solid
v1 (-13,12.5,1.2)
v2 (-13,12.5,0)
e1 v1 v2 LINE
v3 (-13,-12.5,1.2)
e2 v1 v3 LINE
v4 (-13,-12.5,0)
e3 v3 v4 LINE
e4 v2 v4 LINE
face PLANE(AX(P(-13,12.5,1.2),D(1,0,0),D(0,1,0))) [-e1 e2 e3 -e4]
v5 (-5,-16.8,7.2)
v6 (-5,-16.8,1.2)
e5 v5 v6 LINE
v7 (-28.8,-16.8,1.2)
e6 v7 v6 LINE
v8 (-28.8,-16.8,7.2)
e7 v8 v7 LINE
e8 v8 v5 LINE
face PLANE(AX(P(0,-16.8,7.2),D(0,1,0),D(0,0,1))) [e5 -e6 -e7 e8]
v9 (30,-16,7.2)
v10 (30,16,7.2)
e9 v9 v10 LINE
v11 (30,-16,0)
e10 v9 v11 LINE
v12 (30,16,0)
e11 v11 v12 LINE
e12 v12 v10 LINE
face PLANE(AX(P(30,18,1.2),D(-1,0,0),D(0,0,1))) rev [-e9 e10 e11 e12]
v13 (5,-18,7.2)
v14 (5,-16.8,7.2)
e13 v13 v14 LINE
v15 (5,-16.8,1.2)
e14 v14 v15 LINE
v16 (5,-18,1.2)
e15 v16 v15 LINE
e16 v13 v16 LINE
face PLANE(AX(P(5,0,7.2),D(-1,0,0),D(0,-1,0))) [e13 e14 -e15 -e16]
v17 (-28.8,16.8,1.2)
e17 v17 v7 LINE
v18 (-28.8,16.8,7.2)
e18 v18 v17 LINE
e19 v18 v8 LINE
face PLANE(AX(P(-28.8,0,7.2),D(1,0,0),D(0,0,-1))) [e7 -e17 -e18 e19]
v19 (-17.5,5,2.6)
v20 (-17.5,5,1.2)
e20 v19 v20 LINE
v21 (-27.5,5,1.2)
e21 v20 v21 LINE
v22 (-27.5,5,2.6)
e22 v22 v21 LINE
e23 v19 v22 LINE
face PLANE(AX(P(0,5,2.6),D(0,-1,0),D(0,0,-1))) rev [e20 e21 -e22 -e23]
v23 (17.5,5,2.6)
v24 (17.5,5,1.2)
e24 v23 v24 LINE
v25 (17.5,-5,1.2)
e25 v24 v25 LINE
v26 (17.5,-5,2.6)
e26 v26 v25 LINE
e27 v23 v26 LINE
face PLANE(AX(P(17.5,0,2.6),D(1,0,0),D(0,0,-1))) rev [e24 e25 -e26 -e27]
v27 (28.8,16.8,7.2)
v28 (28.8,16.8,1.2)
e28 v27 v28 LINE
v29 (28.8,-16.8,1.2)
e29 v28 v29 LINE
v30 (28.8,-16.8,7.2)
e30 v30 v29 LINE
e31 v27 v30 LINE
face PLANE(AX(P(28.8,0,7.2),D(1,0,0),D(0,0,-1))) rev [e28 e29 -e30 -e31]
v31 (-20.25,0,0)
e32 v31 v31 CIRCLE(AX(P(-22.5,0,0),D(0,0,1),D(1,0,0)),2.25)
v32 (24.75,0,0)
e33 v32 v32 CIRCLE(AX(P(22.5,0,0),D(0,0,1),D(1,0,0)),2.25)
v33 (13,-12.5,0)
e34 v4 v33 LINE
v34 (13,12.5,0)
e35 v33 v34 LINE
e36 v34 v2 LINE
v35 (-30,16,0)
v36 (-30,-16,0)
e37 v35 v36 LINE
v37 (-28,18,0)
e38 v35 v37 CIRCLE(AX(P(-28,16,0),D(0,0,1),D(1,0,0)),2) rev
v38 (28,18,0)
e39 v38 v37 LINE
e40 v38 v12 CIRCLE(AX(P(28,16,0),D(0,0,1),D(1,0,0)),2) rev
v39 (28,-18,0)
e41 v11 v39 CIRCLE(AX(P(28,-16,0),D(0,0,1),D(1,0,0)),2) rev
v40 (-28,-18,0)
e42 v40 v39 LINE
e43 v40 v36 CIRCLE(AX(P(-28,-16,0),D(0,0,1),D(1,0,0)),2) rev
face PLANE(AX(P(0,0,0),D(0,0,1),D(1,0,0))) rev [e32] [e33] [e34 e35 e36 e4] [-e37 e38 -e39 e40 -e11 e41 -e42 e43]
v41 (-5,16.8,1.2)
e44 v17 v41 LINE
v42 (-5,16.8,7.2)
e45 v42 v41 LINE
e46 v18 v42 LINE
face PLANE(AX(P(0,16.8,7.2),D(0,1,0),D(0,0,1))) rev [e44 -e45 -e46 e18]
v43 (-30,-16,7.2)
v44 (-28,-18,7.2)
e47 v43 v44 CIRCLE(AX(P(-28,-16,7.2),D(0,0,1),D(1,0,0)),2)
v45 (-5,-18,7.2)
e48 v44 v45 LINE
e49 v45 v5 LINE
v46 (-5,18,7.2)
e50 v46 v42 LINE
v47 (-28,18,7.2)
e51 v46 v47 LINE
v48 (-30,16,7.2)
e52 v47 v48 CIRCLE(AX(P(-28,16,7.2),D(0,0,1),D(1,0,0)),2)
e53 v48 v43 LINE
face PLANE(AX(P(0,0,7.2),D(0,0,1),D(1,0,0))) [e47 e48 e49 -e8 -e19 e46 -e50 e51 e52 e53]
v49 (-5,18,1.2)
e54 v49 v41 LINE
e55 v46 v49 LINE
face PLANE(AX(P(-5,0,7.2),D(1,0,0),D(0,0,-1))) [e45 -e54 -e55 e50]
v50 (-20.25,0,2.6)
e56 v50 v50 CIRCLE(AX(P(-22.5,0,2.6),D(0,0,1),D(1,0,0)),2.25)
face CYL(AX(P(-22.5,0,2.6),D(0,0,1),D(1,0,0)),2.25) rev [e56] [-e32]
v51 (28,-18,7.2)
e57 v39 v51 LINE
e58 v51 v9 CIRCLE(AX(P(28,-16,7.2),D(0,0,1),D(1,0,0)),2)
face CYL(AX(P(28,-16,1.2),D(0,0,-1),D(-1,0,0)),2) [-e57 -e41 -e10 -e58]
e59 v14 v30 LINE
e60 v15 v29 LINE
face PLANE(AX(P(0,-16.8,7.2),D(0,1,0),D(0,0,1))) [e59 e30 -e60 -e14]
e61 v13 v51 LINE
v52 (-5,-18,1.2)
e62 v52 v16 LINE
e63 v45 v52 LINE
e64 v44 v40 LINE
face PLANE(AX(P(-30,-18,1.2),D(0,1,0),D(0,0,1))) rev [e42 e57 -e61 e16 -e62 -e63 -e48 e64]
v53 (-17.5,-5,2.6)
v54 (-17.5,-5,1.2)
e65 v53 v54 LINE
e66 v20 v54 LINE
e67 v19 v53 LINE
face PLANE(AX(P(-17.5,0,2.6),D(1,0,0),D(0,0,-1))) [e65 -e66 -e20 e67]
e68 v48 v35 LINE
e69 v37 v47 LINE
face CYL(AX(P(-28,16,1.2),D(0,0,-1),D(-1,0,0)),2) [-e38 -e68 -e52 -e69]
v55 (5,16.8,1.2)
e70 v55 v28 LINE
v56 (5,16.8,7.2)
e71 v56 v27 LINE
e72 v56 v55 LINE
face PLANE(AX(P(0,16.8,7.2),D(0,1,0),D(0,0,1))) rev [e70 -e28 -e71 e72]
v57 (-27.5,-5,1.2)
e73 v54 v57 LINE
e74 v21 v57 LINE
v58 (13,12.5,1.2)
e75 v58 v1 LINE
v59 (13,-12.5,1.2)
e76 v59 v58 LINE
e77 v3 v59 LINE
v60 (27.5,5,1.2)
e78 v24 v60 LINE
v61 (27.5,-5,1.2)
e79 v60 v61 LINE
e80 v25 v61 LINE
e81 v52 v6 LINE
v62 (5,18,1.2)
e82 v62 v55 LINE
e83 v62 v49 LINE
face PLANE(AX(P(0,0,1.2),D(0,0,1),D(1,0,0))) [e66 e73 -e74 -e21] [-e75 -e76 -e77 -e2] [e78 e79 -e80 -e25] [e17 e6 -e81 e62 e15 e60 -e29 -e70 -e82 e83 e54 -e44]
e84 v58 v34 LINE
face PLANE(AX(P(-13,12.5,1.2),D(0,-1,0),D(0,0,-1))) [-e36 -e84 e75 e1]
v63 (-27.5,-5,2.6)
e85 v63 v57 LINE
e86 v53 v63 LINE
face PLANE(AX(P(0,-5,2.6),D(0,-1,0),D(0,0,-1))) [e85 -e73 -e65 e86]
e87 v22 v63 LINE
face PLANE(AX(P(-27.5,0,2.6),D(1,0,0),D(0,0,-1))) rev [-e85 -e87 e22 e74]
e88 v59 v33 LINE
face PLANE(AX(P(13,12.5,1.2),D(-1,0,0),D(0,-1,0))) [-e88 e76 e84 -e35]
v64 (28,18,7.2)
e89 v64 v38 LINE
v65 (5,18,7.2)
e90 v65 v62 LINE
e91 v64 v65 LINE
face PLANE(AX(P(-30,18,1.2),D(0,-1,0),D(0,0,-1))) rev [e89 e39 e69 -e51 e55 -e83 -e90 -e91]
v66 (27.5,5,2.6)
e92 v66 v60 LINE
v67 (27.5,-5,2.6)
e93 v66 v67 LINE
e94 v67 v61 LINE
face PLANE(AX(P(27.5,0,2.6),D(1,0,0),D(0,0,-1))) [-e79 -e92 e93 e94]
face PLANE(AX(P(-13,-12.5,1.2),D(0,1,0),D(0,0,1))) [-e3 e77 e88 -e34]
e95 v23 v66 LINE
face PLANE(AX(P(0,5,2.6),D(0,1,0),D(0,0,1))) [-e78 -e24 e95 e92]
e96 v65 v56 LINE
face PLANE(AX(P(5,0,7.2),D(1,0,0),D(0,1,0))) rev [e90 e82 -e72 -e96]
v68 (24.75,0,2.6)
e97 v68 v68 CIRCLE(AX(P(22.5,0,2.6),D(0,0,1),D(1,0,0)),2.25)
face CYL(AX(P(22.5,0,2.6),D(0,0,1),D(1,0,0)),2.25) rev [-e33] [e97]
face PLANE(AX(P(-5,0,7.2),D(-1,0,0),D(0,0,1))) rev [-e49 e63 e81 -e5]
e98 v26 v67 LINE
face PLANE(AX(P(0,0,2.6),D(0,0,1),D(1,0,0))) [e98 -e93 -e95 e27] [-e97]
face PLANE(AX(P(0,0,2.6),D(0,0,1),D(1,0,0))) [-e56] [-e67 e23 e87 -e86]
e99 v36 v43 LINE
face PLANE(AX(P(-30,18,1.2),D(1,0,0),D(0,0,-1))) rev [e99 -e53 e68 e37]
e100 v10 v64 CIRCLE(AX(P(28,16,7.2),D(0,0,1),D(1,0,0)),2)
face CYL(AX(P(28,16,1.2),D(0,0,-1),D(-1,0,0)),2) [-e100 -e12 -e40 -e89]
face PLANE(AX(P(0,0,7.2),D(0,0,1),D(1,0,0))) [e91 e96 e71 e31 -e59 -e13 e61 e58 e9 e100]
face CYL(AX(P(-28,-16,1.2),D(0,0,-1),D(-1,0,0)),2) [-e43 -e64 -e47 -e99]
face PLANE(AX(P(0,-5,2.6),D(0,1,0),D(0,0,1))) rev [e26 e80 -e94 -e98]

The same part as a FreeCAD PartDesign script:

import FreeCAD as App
import Part
import Sketcher
Q = App.Units.Quantity


def edges_at(feature, points):
    """Names of the edges that pass closest to the given points."""
    edges = feature.Shape.Edges
    near = lambda p: min(range(len(edges)), key=lambda i: edges[i].distToShape(Part.Vertex(*p))[0])
    return sorted({f"Edge{near(p) + 1}" for p in points})


def add_polygon(sketch, points):
    """Adds a closed chain of lines whose ends are joined by coincident constraints."""
    first, n = sketch.GeometryCount, len(points)
    for a, b in zip(points, points[1:] + points[:1]):
        sketch.addGeometry(Part.LineSegment(App.Vector(*a, 0), App.Vector(*b, 0)), False)
    for i in range(n):
        sketch.addConstraint(Sketcher.Constraint("Coincident", first + i, 2, first + (i + 1) % n, 1))

doc = App.newDocument("Part")
body = doc.addObject("PartDesign::Body", "Body")

sketch1 = body.newObject("Sketcher::SketchObject", "Sketch")
sketch1.AttachmentSupport = (doc.getObject("XY_Plane"), [""])
sketch1.MapMode = "FlatFace"
add_polygon(sketch1, [(-30, 18), (-30, -18), (30, -18), (30, 18)])
add_polygon(sketch1, [(13, -12), (-13, -12), (-13, 12), (13, 12)])
sketch1.addConstraint(Sketcher.Constraint("Vertical", 0))
sketch1.addConstraint(Sketcher.Constraint("Horizontal", 1))
sketch1.addConstraint(Sketcher.Constraint("Vertical", 2))
sketch1.addConstraint(Sketcher.Constraint("Horizontal", 3))
sketch1.addConstraint(Sketcher.Constraint("Horizontal", 4))
sketch1.addConstraint(Sketcher.Constraint("Vertical", 5))
sketch1.addConstraint(Sketcher.Constraint("Horizontal", 6))
sketch1.addConstraint(Sketcher.Constraint("Vertical", 7))
sketch1.addConstraint(Sketcher.Constraint("Symmetric", 0, 2, 2, 2, -1, 1))
sketch1.addConstraint(Sketcher.Constraint("Symmetric", 4, 2, 6, 2, -1, 1))
sketch1.addConstraint(Sketcher.Constraint("DistanceX", 1, 1, 1, 2, Q("60 mm")))
sketch1.addConstraint(Sketcher.Constraint("DistanceX", 4, 2, 4, 1, Q("26 mm")))
sketch1.addConstraint(Sketcher.Constraint("DistanceY", 0, 2, 0, 1, Q("36 mm")))
sketch1.addConstraint(Sketcher.Constraint("DistanceY", 5, 1, 5, 2, Q("25 mm")))
pad1 = body.newObject("PartDesign::Pad", "Pad")
pad1.Profile = sketch1
pad1.Length = 1.2

sketch2 = body.newObject("Sketcher::SketchObject", "Sketch001")
sketch2.AttachmentSupport = (doc.getObject("XY_Plane"), [""])
sketch2.MapMode = "FlatFace"
sketch2.AttachmentOffset = App.Placement(App.Vector(0, 0, 1.2), App.Rotation())
add_polygon(sketch2, [(18, 5), (18, -5), (28, -5), (28, 5)])
add_polygon(sketch2, [(-28, 5), (-28, -5), (-18, -5), (-18, 5)])
sketch2.addConstraint(Sketcher.Constraint("Vertical", 0))
sketch2.addConstraint(Sketcher.Constraint("Horizontal", 1))
sketch2.addConstraint(Sketcher.Constraint("Vertical", 2))
sketch2.addConstraint(Sketcher.Constraint("Horizontal", 3))
sketch2.addConstraint(Sketcher.Constraint("Vertical", 4))
sketch2.addConstraint(Sketcher.Constraint("Horizontal", 5))
sketch2.addConstraint(Sketcher.Constraint("Vertical", 6))
sketch2.addConstraint(Sketcher.Constraint("Horizontal", 7))
sketch2.addConstraint(Sketcher.Constraint("Symmetric", 2, 2, 4, 2, -1, 1))
sketch2.addConstraint(Sketcher.Constraint("Symmetric", 0, 2, 6, 2, -1, 1))
sketch2.addConstraint(Sketcher.Constraint("Horizontal", 1, 2, 4, 2))
sketch2.addConstraint(Sketcher.Constraint("Equal", 7, 0))
sketch2.addConstraint(Sketcher.Constraint("DistanceX", 1, 1, 1, 2, Q("10 mm")))
sketch2.addConstraint(Sketcher.Constraint("DistanceX", 4, 2, 0, 2, Q("45 mm")))
pad2 = body.newObject("PartDesign::Pad", "Pad001")
pad2.Profile = sketch2
pad2.Length = 1.4

sketch3 = body.newObject("Sketcher::SketchObject", "Sketch002")
sketch3.AttachmentSupport = (doc.getObject("XY_Plane"), [""])
sketch3.MapMode = "FlatFace"
sketch3.AttachmentOffset = App.Placement(App.Vector(0, 0, 1.2), App.Rotation())
add_polygon(sketch3, [(-28.8, -16.8), (-28.8, 16.8), (-5, 16.8), (-5, 18), (-30, 18), (-30, -18), (-5, -18), (-5, -16.8)])
add_polygon(sketch3, [(28.8, -16.8), (5, -16.8), (5, -18), (30, -18), (30, 18), (5, 18), (5, 16.8), (28.8, 16.8)])
sketch3.addConstraint(Sketcher.Constraint("Vertical", 0))
sketch3.addConstraint(Sketcher.Constraint("Horizontal", 1))
sketch3.addConstraint(Sketcher.Constraint("Vertical", 2))
sketch3.addConstraint(Sketcher.Constraint("Horizontal", 3))
sketch3.addConstraint(Sketcher.Constraint("Vertical", 4))
sketch3.addConstraint(Sketcher.Constraint("Horizontal", 5))
sketch3.addConstraint(Sketcher.Constraint("Vertical", 6))
sketch3.addConstraint(Sketcher.Constraint("Horizontal", 7))
sketch3.addConstraint(Sketcher.Constraint("Horizontal", 8))
sketch3.addConstraint(Sketcher.Constraint("Vertical", 9))
sketch3.addConstraint(Sketcher.Constraint("Horizontal", 10))
sketch3.addConstraint(Sketcher.Constraint("Vertical", 11))
sketch3.addConstraint(Sketcher.Constraint("Horizontal", 12))
sketch3.addConstraint(Sketcher.Constraint("Vertical", 13))
sketch3.addConstraint(Sketcher.Constraint("Horizontal", 14))
sketch3.addConstraint(Sketcher.Constraint("Vertical", 15))
sketch3.addConstraint(Sketcher.Constraint("Symmetric", 1, 2, 8, 2, -1, 1))
sketch3.addConstraint(Sketcher.Constraint("Symmetric", 3, 2, 10, 2, -1, 1))
sketch3.addConstraint(Sketcher.Constraint("Symmetric", 5, 2, 12, 2, -1, 1))
sketch3.addConstraint(Sketcher.Constraint("Symmetric", 7, 2, 14, 2, -1, 1))
sketch3.addConstraint(Sketcher.Constraint("Symmetric", 6, 2, 8, 2, -2))
sketch3.addConstraint(Sketcher.Constraint("Horizontal", 5, 2, 9, 2))
sketch3.addConstraint(Sketcher.Constraint("DistanceX", 3, 2, 3, 1, Q("25 mm")))
sketch3.addConstraint(Sketcher.Constraint("DistanceY", 4, 2, 4, 1, Q("36 mm")))
sketch3.addConstraint(Sketcher.Constraint("DistanceX", 1, 1, 1, 2, Q("23.8 mm")))
sketch3.addConstraint(Sketcher.Constraint("DistanceY", 0, 1, 0, 2, Q("33.6 mm")))
sketch3.addConstraint(Sketcher.Constraint("DistanceX", 1, 2, -1, 1, Q("5 mm")))
pad3 = body.newObject("PartDesign::Pad", "Pad002")
pad3.Profile = sketch3
pad3.Length = 6

sketch4 = body.newObject("Sketcher::SketchObject", "Sketch003")
sketch4.AttachmentSupport = (doc.getObject("XY_Plane"), [""])
sketch4.MapMode = "FlatFace"
sketch4.AttachmentOffset = App.Placement(App.Vector(0, 0, 2.6), App.Rotation())
sketch4.addGeometry(Part.Circle(App.Vector(-22.5, 0, 0), App.Vector(0, 0, 1), 2.2), False)
sketch4.addGeometry(Part.Circle(App.Vector(22.5, 0, 0), App.Vector(0, 0, 1), 2.2), False)
sketch4.addConstraint(Sketcher.Constraint("Equal", 0, 1))
sketch4.addConstraint(Sketcher.Constraint("Symmetric", 0, 3, 1, 3, -1, 1))
sketch4.addConstraint(Sketcher.Constraint("PointOnObject", 0, 3, -1))
sketch4.addConstraint(Sketcher.Constraint("Diameter", 0, Q("4.5 mm")))
sketch4.addConstraint(Sketcher.Constraint("DistanceX", 0, 3, 1, 3, Q("45 mm")))
doc.recompute()
hole = body.newObject("PartDesign::Hole", "Hole")
hole.Profile = sketch4
hole.ThreadType = "None"
hole.Diameter = 4.5
hole.DepthType = "ThroughAll"
doc.recompute()

fillet = body.newObject("PartDesign::Fillet", "Fillet")
fillet.Base = (hole, edges_at(hole, [
    (30, -18, 3.6),
    (-30, -18, 3.6),
    (-30, 18, 3.6),
    (30, 18, 3.6),
]))
fillet.Radius = 2

doc.recompute()
